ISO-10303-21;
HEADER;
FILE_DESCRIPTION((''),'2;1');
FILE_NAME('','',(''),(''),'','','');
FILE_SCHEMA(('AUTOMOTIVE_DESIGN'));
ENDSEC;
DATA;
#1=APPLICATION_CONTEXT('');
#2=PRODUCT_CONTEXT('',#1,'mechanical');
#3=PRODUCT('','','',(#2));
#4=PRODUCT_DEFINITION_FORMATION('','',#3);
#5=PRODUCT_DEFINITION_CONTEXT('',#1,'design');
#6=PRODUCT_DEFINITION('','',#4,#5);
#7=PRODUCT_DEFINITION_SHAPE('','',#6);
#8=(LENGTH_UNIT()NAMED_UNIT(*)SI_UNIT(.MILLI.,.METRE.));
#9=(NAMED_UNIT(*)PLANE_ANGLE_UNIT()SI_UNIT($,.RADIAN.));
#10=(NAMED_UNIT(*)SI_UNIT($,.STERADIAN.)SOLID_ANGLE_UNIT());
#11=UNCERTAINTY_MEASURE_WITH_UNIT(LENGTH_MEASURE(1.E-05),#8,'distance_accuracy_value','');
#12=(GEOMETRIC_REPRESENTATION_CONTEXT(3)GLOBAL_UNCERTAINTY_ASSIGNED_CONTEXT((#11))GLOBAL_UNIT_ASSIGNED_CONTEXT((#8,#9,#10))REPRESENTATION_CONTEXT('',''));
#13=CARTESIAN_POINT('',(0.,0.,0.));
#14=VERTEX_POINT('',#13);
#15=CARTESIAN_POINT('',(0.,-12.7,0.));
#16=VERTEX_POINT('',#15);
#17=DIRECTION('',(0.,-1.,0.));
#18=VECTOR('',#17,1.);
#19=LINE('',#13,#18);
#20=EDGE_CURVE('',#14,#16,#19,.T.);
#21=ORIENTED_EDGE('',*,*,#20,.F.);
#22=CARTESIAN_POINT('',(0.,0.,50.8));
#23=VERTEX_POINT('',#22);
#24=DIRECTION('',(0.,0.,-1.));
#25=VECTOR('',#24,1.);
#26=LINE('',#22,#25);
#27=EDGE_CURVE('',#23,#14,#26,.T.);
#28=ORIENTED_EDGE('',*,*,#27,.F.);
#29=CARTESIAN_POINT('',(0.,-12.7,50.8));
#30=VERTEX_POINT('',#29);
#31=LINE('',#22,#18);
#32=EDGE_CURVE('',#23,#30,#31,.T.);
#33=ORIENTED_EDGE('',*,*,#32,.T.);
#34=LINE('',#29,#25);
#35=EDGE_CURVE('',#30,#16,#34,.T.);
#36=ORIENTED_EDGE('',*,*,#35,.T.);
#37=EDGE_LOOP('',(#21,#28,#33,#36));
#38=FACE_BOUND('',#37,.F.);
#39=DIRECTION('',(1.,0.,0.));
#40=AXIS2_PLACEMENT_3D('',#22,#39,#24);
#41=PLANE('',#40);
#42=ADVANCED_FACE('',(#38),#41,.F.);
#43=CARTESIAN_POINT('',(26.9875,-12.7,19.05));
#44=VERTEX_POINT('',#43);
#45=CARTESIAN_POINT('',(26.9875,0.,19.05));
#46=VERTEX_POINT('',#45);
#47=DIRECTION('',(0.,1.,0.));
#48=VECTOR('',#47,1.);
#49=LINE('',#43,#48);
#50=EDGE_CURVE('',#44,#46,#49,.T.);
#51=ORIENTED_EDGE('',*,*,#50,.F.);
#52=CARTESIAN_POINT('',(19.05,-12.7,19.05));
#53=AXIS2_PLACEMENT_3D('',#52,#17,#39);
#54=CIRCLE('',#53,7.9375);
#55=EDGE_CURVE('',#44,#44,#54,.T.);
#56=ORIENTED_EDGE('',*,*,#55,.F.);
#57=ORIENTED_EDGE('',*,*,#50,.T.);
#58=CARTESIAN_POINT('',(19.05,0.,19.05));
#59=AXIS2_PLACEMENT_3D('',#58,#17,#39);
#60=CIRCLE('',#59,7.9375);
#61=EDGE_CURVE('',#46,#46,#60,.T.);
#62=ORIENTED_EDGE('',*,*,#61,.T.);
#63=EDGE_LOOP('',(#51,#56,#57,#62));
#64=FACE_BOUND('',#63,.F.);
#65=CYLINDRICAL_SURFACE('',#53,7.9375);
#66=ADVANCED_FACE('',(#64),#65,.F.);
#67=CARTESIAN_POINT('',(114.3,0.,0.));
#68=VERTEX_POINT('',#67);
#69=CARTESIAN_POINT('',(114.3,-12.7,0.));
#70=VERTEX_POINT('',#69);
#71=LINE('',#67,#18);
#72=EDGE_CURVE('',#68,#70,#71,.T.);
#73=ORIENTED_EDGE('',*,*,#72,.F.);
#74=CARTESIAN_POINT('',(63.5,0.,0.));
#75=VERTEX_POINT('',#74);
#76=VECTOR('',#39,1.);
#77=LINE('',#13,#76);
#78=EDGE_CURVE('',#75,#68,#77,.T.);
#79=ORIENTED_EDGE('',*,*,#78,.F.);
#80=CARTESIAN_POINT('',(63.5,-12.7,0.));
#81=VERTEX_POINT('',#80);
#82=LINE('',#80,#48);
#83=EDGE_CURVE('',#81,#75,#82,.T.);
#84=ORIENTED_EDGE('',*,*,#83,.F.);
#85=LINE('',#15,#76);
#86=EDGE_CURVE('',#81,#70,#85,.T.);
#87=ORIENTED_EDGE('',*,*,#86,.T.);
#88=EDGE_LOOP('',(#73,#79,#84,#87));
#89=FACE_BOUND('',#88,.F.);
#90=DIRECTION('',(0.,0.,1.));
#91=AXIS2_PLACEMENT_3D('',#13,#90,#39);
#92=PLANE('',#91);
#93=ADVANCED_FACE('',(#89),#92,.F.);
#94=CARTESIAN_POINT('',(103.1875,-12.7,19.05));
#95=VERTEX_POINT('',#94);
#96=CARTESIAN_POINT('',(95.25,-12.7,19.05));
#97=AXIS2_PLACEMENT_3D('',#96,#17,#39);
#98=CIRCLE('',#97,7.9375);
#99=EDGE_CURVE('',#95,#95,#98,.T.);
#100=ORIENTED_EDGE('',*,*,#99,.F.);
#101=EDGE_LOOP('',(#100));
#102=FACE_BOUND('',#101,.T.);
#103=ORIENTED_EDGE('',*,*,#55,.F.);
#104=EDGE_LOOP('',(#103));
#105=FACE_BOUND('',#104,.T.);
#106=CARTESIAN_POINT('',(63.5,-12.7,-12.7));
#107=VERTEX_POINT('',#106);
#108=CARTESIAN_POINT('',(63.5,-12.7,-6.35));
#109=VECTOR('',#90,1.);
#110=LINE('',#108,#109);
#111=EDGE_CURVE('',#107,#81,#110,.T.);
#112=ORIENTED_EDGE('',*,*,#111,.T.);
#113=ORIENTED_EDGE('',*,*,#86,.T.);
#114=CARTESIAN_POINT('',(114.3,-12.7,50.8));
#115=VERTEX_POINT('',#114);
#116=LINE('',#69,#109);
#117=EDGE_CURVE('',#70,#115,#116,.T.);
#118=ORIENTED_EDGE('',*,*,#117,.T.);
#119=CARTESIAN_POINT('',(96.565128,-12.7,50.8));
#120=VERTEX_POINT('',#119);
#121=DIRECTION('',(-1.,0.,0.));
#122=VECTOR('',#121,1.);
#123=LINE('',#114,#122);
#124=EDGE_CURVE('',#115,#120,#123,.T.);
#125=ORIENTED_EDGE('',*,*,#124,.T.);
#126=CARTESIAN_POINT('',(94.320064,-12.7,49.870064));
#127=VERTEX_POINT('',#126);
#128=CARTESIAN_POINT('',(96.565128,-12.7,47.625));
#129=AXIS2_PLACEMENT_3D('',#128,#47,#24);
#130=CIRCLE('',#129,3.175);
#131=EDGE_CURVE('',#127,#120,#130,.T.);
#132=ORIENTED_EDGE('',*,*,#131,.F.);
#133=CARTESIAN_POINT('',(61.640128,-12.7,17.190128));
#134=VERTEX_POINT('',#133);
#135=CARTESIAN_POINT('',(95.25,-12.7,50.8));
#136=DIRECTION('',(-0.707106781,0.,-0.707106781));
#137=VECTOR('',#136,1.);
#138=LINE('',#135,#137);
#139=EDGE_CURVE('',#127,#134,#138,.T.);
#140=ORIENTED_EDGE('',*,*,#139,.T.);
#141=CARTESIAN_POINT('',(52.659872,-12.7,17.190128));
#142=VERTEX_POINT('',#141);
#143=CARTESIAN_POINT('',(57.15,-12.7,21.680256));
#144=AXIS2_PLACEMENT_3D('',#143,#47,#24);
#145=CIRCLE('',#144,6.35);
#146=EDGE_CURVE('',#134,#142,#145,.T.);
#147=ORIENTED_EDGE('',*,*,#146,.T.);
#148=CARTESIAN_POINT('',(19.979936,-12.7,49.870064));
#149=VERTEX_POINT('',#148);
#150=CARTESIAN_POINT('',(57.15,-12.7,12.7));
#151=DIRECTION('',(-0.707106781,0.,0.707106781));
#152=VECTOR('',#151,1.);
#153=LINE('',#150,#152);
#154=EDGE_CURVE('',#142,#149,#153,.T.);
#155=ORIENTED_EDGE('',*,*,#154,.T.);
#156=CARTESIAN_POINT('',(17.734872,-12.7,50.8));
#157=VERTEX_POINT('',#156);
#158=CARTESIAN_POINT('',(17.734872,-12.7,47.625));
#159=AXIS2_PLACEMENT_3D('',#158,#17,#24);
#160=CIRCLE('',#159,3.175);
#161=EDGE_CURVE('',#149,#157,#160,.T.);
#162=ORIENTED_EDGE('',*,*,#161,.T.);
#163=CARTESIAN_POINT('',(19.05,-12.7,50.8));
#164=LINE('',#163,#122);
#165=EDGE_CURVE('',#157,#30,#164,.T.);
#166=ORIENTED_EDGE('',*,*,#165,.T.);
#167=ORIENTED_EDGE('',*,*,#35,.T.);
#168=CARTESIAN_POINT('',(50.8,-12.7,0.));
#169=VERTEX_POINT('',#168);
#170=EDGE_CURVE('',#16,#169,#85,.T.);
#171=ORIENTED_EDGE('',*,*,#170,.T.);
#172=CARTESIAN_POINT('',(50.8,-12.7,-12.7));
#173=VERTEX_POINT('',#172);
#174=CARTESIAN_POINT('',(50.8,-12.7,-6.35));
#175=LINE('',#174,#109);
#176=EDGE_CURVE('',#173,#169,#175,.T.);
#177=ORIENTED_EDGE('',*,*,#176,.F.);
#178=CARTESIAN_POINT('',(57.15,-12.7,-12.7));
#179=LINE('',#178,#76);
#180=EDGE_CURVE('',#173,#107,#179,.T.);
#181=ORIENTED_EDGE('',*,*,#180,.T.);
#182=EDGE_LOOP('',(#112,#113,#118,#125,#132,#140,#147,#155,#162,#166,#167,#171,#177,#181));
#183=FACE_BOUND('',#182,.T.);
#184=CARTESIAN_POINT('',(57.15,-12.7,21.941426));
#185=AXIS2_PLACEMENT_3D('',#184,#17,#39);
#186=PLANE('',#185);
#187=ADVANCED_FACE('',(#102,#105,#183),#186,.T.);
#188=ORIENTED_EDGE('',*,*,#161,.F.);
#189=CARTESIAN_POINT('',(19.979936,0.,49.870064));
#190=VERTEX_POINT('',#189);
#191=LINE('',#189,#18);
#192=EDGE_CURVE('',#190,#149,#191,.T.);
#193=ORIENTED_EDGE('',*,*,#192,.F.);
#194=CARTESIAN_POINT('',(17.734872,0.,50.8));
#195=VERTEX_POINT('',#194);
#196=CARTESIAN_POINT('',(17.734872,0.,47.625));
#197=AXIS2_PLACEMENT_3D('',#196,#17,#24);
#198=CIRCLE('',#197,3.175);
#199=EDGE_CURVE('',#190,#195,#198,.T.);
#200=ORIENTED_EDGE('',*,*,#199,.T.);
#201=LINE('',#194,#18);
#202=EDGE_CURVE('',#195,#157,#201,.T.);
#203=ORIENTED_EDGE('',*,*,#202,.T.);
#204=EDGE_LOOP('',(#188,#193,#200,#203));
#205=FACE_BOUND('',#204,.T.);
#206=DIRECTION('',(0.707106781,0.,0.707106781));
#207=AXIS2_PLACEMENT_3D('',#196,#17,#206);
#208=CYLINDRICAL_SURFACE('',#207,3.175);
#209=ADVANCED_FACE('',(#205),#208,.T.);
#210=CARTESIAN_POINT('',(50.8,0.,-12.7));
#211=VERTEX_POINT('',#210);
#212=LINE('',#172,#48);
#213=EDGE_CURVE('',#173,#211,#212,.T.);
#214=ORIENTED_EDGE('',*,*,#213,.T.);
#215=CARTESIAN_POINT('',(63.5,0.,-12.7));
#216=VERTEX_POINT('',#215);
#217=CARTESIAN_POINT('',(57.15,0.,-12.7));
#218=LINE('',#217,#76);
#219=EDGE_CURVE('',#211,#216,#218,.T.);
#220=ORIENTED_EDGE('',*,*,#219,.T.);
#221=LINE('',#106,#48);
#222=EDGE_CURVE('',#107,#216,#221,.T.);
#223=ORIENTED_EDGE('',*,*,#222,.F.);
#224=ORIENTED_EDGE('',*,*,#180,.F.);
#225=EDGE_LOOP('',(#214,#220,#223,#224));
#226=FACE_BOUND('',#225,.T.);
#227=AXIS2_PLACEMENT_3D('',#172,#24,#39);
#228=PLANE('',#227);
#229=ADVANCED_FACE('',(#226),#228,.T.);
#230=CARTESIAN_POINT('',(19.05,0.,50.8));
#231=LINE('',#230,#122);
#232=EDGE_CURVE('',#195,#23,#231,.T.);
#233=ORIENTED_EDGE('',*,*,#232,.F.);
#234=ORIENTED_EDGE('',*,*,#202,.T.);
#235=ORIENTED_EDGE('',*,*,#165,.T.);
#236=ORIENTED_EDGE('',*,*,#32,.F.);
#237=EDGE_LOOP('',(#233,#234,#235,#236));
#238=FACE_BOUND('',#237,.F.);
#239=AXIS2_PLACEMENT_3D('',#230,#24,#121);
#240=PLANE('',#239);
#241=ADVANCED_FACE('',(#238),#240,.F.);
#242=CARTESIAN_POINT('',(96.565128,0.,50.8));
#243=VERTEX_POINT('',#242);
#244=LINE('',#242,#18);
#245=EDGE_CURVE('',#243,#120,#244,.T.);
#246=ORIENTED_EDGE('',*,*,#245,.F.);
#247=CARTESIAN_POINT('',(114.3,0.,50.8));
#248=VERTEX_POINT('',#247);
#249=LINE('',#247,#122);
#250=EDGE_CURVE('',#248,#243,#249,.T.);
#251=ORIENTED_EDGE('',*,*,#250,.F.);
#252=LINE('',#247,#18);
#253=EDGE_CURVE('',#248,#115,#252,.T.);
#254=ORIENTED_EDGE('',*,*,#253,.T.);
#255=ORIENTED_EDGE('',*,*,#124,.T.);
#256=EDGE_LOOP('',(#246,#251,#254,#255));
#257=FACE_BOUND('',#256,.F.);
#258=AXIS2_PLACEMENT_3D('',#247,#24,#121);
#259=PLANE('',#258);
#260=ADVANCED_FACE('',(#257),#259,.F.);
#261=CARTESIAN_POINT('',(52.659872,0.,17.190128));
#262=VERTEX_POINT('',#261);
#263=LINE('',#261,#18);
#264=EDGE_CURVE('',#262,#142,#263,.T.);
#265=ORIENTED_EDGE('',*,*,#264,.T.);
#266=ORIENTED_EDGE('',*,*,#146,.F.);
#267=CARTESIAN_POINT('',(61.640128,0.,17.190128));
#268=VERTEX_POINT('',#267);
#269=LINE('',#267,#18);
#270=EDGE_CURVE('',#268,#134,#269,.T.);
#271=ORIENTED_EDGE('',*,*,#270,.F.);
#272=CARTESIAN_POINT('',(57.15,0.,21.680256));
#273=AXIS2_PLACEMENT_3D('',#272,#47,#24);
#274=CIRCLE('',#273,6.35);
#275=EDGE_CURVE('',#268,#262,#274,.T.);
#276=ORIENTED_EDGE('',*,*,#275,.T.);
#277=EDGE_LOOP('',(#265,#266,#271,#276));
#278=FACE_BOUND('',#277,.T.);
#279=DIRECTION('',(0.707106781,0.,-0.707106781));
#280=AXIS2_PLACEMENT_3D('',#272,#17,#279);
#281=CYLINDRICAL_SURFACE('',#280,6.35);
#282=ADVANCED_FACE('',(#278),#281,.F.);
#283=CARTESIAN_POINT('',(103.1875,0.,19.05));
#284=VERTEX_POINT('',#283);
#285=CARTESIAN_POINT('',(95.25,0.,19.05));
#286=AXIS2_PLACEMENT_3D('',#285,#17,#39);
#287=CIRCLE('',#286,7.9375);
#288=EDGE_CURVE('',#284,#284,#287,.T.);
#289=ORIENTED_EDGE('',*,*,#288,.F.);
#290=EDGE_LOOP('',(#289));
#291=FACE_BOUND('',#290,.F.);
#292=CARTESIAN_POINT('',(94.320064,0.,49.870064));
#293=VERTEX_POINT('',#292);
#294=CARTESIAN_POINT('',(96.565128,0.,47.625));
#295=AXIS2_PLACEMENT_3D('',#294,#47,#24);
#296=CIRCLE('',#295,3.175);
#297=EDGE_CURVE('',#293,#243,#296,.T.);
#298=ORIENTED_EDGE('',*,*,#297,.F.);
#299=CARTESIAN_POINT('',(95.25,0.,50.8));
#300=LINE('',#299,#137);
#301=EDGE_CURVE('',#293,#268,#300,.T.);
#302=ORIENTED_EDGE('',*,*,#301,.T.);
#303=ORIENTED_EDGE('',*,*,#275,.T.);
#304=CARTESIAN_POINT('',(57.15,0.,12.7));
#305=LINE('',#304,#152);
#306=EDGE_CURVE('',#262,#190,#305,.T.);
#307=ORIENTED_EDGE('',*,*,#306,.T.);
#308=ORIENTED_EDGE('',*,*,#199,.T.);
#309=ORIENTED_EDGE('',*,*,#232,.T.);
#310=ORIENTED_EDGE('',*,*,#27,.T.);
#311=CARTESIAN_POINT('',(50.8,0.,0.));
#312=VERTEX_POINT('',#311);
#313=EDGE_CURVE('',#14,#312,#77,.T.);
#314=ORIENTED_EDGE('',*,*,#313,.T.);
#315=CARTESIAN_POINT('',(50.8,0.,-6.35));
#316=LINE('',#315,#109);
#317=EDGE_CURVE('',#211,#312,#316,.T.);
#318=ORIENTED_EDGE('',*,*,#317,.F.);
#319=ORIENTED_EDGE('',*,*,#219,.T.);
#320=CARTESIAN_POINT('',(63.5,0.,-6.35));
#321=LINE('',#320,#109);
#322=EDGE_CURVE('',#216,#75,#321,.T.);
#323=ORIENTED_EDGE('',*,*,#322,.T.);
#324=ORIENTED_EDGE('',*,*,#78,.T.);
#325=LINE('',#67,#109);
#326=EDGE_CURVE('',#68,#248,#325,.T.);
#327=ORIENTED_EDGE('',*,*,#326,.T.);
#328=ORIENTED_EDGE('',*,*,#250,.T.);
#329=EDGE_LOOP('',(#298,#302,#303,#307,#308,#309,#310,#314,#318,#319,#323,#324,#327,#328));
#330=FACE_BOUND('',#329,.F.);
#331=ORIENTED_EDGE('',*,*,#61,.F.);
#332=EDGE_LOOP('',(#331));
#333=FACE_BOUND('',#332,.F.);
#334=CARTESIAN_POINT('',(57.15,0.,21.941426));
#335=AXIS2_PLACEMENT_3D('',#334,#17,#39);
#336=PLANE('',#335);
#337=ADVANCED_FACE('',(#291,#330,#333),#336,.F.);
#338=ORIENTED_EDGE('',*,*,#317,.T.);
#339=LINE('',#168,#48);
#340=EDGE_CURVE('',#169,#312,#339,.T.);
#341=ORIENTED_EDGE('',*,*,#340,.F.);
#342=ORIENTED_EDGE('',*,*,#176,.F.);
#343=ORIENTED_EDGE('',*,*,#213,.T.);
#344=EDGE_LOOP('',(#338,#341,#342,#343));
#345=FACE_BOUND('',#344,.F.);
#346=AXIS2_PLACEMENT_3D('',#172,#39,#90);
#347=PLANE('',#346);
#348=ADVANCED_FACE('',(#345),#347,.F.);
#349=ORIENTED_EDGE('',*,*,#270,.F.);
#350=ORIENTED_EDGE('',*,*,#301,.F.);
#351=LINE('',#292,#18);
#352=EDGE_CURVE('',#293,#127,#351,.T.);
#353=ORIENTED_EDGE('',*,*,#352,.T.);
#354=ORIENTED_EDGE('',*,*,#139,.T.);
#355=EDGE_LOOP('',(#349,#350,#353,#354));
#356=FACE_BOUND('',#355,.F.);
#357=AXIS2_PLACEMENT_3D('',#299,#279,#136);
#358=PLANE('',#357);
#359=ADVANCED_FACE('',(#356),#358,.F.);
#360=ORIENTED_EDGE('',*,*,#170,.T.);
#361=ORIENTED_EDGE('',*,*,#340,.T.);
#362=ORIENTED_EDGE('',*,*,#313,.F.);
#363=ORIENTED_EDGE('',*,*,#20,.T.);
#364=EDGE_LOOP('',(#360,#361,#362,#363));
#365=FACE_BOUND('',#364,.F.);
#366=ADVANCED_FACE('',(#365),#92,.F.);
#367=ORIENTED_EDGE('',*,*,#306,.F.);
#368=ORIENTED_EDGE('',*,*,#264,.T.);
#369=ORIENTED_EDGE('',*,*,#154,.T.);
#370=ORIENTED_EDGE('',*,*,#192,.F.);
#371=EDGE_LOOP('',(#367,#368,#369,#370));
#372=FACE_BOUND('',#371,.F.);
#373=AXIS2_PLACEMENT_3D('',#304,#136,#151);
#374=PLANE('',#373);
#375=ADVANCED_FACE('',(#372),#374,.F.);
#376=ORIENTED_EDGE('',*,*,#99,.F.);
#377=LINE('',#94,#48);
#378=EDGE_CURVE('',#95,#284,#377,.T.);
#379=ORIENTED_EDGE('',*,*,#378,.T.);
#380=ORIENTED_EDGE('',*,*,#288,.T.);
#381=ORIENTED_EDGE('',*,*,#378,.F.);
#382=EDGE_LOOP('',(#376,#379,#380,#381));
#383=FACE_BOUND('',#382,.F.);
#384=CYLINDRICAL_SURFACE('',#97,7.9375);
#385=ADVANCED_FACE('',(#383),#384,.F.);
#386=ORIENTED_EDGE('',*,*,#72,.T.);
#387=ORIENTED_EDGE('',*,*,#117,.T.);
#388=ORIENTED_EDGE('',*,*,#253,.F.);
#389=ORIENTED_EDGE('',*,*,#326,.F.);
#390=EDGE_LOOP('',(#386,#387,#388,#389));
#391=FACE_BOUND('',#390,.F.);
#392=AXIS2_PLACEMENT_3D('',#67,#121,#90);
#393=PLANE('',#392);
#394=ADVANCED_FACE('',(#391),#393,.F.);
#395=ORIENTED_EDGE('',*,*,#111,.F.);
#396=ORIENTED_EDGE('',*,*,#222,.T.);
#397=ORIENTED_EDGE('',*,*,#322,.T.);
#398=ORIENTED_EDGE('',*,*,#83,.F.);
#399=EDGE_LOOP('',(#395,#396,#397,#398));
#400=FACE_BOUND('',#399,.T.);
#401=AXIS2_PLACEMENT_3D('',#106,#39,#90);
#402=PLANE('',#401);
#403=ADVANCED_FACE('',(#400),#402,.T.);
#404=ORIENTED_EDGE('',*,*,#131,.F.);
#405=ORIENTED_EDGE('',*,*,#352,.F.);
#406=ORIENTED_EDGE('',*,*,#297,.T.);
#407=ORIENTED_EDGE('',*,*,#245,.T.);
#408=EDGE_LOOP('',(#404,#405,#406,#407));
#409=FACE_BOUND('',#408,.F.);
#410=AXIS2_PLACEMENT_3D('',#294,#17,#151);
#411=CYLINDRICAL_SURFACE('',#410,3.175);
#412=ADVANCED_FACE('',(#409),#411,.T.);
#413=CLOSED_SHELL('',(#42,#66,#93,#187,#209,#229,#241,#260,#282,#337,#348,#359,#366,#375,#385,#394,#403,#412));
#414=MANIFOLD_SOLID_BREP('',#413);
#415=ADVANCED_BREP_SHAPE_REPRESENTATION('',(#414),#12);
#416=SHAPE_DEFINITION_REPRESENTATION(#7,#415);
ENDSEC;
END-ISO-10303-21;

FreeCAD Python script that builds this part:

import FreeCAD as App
import Part
import Sketcher

V = App.Vector
Q = App.Units.Quantity


def edges_at(feature, points):
    """Names of the edges that pass closest to the given points."""
    edges = feature.Shape.Edges
    near = lambda p: min(range(len(edges)), key=lambda i: edges[i].distToShape(Part.Vertex(*p))[0])
    return sorted({f"Edge{near(p) + 1}" for p in points})

doc = App.newDocument("Part")
body = doc.addObject("PartDesign::Body", "Body")

# Sketch on XZ plane
sketch1 = body.newObject("Sketcher::SketchObject", "Sketch")
sketch1.AttachmentSupport = (doc.getObject("XZ_Plane"), [""])
sketch1.MapMode = "FlatFace"
sketch1.addGeometry([
    Part.LineSegment(V(0, 51, 0), V(0, 0, 0)),  # 0
    Part.LineSegment(V(0, 0, 0), V(114, 0, 0)),  # 1
    Part.LineSegment(V(114, 0, 0), V(114, 51, 0)),  # 2
    Part.LineSegment(V(114, 51, 0), V(95, 51, 0)),  # 3
    Part.LineSegment(V(95, 51, 0), V(57, 13, 0)),  # 4
    Part.LineSegment(V(57, 13, 0), V(19, 51, 0)),  # 5
    Part.LineSegment(V(19, 51, 0), V(0, 51, 0)),  # 6
], False)
sketch1.addConstraint([
    Sketcher.Constraint("Coincident", 0, 2, 1, 1),
    Sketcher.Constraint("Coincident", 1, 2, 2, 1),
    Sketcher.Constraint("Coincident", 2, 2, 3, 1),
    Sketcher.Constraint("Coincident", 3, 2, 4, 1),
    Sketcher.Constraint("Coincident", 4, 2, 5, 1),
    Sketcher.Constraint("Coincident", 5, 2, 6, 1),
    Sketcher.Constraint("Coincident", 6, 2, 0, 1),
    Sketcher.Constraint("Vertical", 0),
    Sketcher.Constraint("Horizontal", 1),
    Sketcher.Constraint("Vertical", 2),
    Sketcher.Constraint("Horizontal", 3),
    Sketcher.Constraint("Horizontal", 6),
    Sketcher.Constraint("Coincident", 0, 2, -1, 1),
    Sketcher.Constraint("Perpendicular", 4, 5),
    Sketcher.Constraint("Horizontal", 3, 2, 5, 2),
    Sketcher.Constraint("Equal", 3, 6),
    Sketcher.Constraint("Equal", 4, 5),
    Sketcher.Constraint("DistanceY", 0, 2, 0, 1, Q("2 in")),
    Sketcher.Constraint("DistanceX", 1, 1, 1, 2, Q("4.5 in")),
    Sketcher.Constraint("DistanceX", 5, 2, 3, 2, Q("3 in")),
])
pad1 = body.newObject("PartDesign::Pad", "Pad")
pad1.Profile = sketch1
pad1.Length = Q("0.5 in")
doc.recompute()

fillet = body.newObject("PartDesign::Fillet", "Fillet")
fillet.Base = (pad1, edges_at(pad1, [(57.15, -6.35, 12.7)]))
fillet.Radius = Q("0.25 in")
doc.recompute()

fillet2 = body.newObject("PartDesign::Fillet", "Fillet001")
fillet2.Base = (fillet, edges_at(fillet, [(19.05, -6.35, 50.8), (95.25, -6.35, 50.8)]))
fillet2.Radius = Q("0.125 in")

# Sketch on XZ plane
sketch2 = body.newObject("Sketcher::SketchObject", "Sketch001")
sketch2.AttachmentSupport = (doc.getObject("XZ_Plane"), [""])
sketch2.MapMode = "FlatFace"
sketch2.AttachmentOffset = App.Placement(V(0, 0, 0.5 * 25.4), App.Rotation())
sketch2.addGeometry([
    Part.LineSegment(V(51, 0, 0), V(51, -13, 0)),
    Part.LineSegment(V(51, -13, 0), V(64, -13, 0)),
    Part.LineSegment(V(64, -13, 0), V(64, 0, 0)),
    Part.LineSegment(V(64, 0, 0), V(51, 0, 0)),
], False)
sketch2.addConstraint([
    Sketcher.Constraint("Coincident", 0, 2, 1, 1),
    Sketcher.Constraint("Coincident", 1, 2, 2, 1),
    Sketcher.Constraint("Coincident", 2, 2, 3, 1),
    Sketcher.Constraint("Coincident", 3, 2, 0, 1),
    Sketcher.Constraint("Vertical", 0),
    Sketcher.Constraint("Horizontal", 1),
    Sketcher.Constraint("Vertical", 2),
    Sketcher.Constraint("Horizontal", 3),
    Sketcher.Constraint("PointOnObject", 2, 2, -1),
    Sketcher.Constraint("Equal", 3, 0),
    Sketcher.Constraint("DistanceX", 1, 1, 1, 2, Q("0.5 in")),
    Sketcher.Constraint("DistanceX", -1, 1, 0, 2, Q("2 in")),
])
pad2 = body.newObject("PartDesign::Pad", "Pad001")
pad2.Profile = sketch2
pad2.Length = Q("0.5 in")
pad2.Reversed = True

# Sketch on XZ plane
sketch3 = body.newObject("Sketcher::SketchObject", "Sketch002")
sketch3.AttachmentSupport = (doc.getObject("XZ_Plane"), [""])
sketch3.MapMode = "FlatFace"
sketch3.AttachmentOffset = App.Placement(V(0, 0, 0.5 * 25.4), App.Rotation())
sketch3.addGeometry([
    Part.Circle(V(19, 19, 0), V(0, 0, 1), 8),
    Part.Circle(V(95, 19, 0), V(0, 0, 1), 8),
], False)
sketch3.addConstraint([
    Sketcher.Constraint("Equal", 0, 1),
    Sketcher.Constraint("Horizontal", 0, 3, 1, 3),
    Sketcher.Constraint("Diameter", 0, Q("0.625 in")),
    Sketcher.Constraint("DistanceX", 0, 3, 1, 3, Q("3 in")),
    Sketcher.Constraint("DistanceX", -1, 1, 0, 3, Q("0.75 in")),
    Sketcher.Constraint("DistanceY", -1, 1, 0, 3, Q("0.75 in")),
])
pocket1 = body.newObject("PartDesign::Pocket", "Pocket")
pocket1.Profile = sketch3
pocket1.Length = Q("1 in")

doc.recompute()
